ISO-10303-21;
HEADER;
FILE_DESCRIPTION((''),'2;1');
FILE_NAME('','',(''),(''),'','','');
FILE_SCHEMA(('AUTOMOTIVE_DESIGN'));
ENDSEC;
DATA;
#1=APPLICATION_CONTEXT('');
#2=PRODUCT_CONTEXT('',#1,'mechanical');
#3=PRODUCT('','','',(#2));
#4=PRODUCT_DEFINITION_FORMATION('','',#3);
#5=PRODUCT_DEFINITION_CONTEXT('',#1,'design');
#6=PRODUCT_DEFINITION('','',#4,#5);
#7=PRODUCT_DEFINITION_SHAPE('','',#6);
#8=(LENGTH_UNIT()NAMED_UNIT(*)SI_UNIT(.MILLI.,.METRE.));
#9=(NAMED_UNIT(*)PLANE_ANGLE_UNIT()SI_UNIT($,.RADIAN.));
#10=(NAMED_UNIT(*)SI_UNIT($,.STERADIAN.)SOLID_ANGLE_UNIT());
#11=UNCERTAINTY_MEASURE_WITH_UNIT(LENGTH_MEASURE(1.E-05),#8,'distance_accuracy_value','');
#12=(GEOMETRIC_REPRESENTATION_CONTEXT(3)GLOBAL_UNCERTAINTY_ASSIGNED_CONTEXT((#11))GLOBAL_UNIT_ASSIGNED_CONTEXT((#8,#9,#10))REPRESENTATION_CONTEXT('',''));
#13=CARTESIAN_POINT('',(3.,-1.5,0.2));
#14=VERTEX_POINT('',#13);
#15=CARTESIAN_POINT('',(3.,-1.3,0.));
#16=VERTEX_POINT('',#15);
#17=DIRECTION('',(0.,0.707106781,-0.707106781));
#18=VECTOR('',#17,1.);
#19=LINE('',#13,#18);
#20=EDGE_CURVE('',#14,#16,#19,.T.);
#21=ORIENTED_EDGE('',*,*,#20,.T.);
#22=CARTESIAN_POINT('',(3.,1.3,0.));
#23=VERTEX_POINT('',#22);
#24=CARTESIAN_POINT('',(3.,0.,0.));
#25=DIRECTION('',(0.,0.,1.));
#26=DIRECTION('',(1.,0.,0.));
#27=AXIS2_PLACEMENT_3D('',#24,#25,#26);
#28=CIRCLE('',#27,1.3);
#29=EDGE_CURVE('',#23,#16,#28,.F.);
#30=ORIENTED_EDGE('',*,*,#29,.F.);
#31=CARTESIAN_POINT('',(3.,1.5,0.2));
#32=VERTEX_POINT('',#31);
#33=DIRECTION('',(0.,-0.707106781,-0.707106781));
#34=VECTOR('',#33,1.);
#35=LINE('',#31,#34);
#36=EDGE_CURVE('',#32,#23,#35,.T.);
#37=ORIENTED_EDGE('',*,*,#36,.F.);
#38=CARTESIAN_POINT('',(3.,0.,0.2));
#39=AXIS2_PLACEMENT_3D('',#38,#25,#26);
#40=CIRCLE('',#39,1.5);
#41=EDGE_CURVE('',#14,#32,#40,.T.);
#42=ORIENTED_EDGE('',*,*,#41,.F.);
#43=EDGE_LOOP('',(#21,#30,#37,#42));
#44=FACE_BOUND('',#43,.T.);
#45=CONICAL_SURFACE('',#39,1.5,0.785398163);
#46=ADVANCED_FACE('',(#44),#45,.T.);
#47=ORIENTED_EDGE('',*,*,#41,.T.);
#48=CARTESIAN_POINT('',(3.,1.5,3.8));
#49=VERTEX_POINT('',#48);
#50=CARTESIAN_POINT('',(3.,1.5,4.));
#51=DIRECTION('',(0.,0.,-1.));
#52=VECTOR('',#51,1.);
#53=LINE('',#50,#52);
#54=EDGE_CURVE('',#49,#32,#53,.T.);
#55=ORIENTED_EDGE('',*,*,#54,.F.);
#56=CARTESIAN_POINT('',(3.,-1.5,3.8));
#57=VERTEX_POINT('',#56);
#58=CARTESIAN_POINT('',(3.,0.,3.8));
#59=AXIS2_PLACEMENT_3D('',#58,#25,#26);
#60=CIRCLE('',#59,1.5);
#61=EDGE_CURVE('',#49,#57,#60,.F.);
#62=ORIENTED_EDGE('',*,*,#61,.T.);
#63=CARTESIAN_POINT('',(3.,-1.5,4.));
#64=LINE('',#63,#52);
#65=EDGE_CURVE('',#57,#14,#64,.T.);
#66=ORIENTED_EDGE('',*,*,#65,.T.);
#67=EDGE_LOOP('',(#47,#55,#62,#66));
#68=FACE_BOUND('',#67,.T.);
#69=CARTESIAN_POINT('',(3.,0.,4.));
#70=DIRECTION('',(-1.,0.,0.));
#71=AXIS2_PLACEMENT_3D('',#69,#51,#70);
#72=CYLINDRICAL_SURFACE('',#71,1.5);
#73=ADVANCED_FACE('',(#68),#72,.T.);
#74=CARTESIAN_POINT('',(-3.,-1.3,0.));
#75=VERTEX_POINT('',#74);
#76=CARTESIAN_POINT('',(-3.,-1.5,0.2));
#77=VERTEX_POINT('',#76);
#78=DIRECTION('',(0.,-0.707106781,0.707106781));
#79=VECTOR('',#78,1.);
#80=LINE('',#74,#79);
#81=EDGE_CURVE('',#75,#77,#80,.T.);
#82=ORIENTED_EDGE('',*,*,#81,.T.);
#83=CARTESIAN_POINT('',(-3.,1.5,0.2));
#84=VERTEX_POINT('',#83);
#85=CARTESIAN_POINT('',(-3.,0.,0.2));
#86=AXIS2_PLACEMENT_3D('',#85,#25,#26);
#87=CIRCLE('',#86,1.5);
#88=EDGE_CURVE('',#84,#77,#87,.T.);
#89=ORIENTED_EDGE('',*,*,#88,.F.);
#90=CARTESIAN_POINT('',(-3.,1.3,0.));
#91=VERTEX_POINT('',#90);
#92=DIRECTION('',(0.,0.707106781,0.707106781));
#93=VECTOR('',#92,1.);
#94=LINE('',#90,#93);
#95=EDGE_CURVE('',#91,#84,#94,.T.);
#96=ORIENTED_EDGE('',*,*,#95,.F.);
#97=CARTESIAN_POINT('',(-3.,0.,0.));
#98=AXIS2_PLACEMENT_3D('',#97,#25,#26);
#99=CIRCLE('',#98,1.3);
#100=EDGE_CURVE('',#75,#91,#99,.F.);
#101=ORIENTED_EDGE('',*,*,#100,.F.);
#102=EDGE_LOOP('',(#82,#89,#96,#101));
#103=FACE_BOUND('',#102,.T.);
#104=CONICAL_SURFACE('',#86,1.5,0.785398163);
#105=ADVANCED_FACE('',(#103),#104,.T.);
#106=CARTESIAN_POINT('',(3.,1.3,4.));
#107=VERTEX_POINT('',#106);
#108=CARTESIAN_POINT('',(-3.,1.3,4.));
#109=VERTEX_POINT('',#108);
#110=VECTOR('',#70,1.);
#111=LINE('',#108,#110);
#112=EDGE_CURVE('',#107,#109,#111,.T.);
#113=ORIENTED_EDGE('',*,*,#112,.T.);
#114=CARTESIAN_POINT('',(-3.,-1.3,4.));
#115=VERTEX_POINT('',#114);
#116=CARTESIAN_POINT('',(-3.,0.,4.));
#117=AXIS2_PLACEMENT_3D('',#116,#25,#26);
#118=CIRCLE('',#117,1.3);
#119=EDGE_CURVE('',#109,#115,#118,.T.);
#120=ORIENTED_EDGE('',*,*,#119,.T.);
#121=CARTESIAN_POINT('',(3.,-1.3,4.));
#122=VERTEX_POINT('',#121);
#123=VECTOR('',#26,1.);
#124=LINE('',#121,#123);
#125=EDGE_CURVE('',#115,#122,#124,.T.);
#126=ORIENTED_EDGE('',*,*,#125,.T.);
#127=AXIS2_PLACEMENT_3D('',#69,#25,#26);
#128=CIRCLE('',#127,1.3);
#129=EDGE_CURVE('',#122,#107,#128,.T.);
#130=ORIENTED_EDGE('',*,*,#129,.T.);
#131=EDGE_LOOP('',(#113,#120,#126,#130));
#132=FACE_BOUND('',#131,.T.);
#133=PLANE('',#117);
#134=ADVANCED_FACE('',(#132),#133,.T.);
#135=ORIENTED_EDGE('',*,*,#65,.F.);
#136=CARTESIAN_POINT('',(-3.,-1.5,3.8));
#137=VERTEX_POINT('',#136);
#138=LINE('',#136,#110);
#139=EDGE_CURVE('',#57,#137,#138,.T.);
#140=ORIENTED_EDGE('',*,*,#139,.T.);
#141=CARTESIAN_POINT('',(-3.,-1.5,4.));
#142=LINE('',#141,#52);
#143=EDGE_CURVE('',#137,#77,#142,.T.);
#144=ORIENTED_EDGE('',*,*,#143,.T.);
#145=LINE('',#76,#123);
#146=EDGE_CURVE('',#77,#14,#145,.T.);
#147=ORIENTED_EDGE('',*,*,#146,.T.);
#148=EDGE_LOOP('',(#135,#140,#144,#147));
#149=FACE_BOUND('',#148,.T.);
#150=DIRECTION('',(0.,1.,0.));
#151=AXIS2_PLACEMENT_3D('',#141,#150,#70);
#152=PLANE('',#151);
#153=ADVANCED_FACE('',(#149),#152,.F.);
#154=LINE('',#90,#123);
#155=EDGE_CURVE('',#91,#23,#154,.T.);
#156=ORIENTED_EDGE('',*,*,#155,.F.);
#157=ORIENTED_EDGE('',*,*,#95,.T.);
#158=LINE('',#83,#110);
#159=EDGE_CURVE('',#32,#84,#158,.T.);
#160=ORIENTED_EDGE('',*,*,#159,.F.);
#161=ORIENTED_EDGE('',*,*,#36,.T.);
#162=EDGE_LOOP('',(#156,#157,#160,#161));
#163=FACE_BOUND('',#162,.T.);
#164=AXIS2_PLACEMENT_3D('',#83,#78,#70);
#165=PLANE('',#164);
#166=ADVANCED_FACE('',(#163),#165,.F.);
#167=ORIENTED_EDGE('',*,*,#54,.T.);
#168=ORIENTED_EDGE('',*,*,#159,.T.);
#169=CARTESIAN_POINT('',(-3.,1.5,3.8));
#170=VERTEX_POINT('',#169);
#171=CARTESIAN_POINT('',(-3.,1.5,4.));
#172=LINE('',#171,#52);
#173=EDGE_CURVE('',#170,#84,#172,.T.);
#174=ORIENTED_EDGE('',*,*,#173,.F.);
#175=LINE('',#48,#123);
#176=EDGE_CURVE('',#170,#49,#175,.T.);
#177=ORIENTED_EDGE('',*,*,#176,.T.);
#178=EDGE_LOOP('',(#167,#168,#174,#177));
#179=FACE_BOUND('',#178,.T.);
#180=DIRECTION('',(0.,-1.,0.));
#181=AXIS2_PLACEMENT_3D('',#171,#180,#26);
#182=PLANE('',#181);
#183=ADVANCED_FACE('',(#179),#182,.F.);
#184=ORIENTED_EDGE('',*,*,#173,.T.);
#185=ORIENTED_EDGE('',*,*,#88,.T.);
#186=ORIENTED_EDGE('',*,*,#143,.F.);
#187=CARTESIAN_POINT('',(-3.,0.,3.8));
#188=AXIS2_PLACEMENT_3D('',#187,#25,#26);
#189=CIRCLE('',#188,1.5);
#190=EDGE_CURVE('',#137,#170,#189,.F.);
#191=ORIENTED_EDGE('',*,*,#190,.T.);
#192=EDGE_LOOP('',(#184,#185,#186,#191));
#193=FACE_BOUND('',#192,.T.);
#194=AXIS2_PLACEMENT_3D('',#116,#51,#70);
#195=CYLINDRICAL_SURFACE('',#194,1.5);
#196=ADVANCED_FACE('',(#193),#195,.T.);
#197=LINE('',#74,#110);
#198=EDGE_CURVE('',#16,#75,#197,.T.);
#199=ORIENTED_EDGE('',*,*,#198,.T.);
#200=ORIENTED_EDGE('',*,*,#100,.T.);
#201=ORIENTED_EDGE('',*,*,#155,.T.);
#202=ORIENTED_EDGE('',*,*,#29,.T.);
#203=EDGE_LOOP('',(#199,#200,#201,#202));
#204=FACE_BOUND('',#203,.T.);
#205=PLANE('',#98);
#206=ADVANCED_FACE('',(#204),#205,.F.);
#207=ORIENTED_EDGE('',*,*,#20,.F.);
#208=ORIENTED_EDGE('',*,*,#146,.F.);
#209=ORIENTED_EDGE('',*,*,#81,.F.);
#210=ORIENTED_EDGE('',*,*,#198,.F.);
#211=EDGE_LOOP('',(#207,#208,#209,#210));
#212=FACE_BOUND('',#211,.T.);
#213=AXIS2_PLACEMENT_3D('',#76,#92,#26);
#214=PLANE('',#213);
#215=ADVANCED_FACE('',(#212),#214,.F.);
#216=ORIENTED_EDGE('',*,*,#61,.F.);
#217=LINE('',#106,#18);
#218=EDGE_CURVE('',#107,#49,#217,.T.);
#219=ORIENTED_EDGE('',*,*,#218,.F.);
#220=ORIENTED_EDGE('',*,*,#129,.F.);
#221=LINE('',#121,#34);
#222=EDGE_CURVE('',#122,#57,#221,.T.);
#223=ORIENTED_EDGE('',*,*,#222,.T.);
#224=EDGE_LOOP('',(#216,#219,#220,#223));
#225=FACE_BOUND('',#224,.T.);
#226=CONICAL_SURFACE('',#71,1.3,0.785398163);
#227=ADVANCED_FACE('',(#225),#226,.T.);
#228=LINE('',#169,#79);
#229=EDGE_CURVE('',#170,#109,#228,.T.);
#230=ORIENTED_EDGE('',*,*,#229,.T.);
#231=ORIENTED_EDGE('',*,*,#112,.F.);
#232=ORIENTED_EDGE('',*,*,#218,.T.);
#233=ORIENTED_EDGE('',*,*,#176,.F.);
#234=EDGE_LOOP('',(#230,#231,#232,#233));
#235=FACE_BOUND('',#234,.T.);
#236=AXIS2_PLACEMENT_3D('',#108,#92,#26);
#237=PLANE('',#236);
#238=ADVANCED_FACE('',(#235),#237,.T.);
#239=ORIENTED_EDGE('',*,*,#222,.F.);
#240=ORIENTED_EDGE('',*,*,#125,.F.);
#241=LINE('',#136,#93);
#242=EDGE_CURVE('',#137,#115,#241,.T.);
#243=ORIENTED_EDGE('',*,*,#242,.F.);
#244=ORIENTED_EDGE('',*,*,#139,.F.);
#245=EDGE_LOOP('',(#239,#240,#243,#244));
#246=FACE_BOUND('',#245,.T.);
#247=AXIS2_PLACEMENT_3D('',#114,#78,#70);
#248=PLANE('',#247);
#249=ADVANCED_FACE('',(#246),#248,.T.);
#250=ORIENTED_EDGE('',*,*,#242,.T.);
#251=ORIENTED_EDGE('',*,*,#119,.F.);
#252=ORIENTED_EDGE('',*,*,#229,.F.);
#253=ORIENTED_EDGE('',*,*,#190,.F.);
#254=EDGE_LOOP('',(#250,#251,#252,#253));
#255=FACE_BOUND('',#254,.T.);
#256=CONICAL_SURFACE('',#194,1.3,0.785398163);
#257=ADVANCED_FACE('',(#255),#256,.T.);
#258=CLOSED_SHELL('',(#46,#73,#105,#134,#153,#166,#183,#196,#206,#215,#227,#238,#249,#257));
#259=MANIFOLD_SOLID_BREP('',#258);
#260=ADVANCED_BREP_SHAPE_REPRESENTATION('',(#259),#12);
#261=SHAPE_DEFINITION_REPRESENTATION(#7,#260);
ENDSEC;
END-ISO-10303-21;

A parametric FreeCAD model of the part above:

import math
import FreeCAD as App
import Part
import Sketcher
from FreeCAD import Vector


def edges_at(feature, points):
    """Names of the edges that pass closest to the given points."""
    edges = feature.Shape.Edges
    near = lambda p: min(range(len(edges)), key=lambda i: edges[i].distToShape(Part.Vertex(*p))[0])
    return sorted({f"Edge{near(p) + 1}" for p in points})

doc = App.newDocument("Part")
body = doc.addObject("PartDesign::Body", "Body")

# Sketch on XY plane
sketch1 = body.newObject("Sketcher::SketchObject", "Sketch")
sketch1.AttachmentSupport = (doc.getObject("XY_Plane"), [""])
sketch1.MapMode = "FlatFace"
sketch1.addGeometry([
    Part.LineSegment(Vector(3, 1.5, 0), Vector(-3, 1.5, 0)),
    Part.ArcOfCircle(Part.Circle(Vector(-3, 0, 0), Vector(0, 0, 1), 1.5), math.radians(90), math.radians(270)),
    Part.LineSegment(Vector(-3, -1.5, 0), Vector(3, -1.5, 0)),
    Part.ArcOfCircle(Part.Circle(Vector(3, 0, 0), Vector(0, 0, 1), 1.5), math.radians(-90), math.radians(90)),
], False)
sketch1.addConstraint([
    Sketcher.Constraint("Tangent", 0, 2, 1, 1),
    Sketcher.Constraint("Tangent", 1, 2, 2, 1),
    Sketcher.Constraint("Tangent", 2, 2, 3, 1),
    Sketcher.Constraint("Tangent", 3, 2, 0, 1),
    Sketcher.Constraint("Horizontal", 0),
    Sketcher.Constraint("Horizontal", 2),
    Sketcher.Constraint("Symmetric", 1, 3, 3, 3, -1, 1),
    Sketcher.Constraint("Radius", 1, 1.5),
    Sketcher.Constraint("DistanceX", 0, 2, 0, 1, 6.0),
])
pad1 = body.newObject("PartDesign::Pad", "Pad")
pad1.Profile = sketch1
pad1.Length = 4
doc.recompute()

chamfer = body.newObject("PartDesign::Chamfer", "Chamfer")
chamfer.Base = (pad1, edges_at(pad1, [
    (4.5, 0, 4),
    (0, 1.5, 4),
    (-4.5, 0, 4),
    (0, 1.5, 0),
    (4.5, 0, 0),
    (0, -1.5, 0),
    (-4.5, 0, 0),
    (0, -1.5, 4),
]))
chamfer.Size = 0.2

doc.recompute()
